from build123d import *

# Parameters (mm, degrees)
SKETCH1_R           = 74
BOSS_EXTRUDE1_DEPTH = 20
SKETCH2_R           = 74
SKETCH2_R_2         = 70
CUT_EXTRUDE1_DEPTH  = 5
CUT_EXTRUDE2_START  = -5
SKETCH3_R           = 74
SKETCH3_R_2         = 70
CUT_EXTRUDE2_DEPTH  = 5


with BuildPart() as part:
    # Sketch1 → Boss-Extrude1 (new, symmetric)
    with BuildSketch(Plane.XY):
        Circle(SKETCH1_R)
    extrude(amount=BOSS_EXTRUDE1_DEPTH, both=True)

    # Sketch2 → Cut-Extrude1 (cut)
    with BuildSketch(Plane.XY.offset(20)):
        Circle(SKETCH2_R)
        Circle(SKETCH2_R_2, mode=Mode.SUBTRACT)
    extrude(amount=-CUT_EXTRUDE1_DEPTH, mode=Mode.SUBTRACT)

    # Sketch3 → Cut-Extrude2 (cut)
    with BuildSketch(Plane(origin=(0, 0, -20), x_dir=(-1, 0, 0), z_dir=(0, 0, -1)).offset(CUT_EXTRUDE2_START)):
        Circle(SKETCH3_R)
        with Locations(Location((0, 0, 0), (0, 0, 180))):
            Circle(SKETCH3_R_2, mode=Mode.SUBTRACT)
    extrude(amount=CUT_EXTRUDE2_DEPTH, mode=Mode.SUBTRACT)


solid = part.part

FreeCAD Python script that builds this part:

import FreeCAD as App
import Part
import Sketcher

V = App.Vector
Q = App.Units.Quantity

doc = App.newDocument("Part")
params = doc.addObject("Spreadsheet::Sheet", "Params")
for row, (alias, value) in enumerate([
    ("sketch1_diameter", "148 mm"),
    ("pad1_length", "40 mm"),
    ("sketch2_diameter", "148 mm"),
    ("sketch2_diameter2", "140 mm"),
    ("pocket1_length", "5 mm"),
    ("sketch3_diameter", "148 mm"),
    ("sketch3_diameter2", "140 mm"),
    ("pocket2_length", "5 mm"),
], start=1):
    params.set(f"A{row}", alias)
    params.set(f"B{row}", "=" + value)
    params.setAlias(f"B{row}", alias)

body = doc.addObject("PartDesign::Body", "Body")

# Sketch on XY plane
sketch1 = body.newObject("Sketcher::SketchObject", "Sketch")
sketch1.AttachmentSupport = (doc.getObject("XY_Plane"), [""])
sketch1.MapMode = "FlatFace"
sketch1.addGeometry(Part.Circle(V(0, 0, 0), V(0, 0, 1), 74), False)
sketch1.addConstraint([
    Sketcher.Constraint("Coincident", 0, 3, -1, 1),
    Sketcher.Constraint("Diameter", 0, Q("148 mm")),
])
sketch1.setExpression("Constraints[1]", "Params.sketch1_diameter")
pad1 = body.newObject("PartDesign::Pad", "Pad")
pad1.Profile = sketch1
pad1.setExpression("Length", "Params.pad1_length")
pad1.Midplane = True

# Sketch on XY plane
sketch2 = body.newObject("Sketcher::SketchObject", "Sketch001")
sketch2.AttachmentSupport = (doc.getObject("XY_Plane"), [""])
sketch2.MapMode = "FlatFace"
sketch2.AttachmentOffset = App.Placement(V(0, 0, 20), App.Rotation())
sketch2.addGeometry([
    Part.Circle(V(0, 0, 0), V(0, 0, 1), 74),
    Part.Circle(V(0, 0, 0), V(0, 0, 1), 70),
], False)
sketch2.addConstraint([
    Sketcher.Constraint("Coincident", 0, 3, -1, 1),
    Sketcher.Constraint("Coincident", 1, 3, -1, 1),
    Sketcher.Constraint("Diameter", 0, Q("148 mm")),
    Sketcher.Constraint("Diameter", 1, Q("140 mm")),
])
sketch2.setExpression("Constraints[2]", "Params.sketch2_diameter")
sketch2.setExpression("Constraints[3]", "Params.sketch2_diameter2")
pocket1 = body.newObject("PartDesign::Pocket", "Pocket")
pocket1.Profile = sketch2
pocket1.setExpression("Length", "Params.pocket1_length")

# Sketch on XY plane
sketch3 = body.newObject("Sketcher::SketchObject", "Sketch002")
sketch3.AttachmentSupport = (doc.getObject("XY_Plane"), [""])
sketch3.MapMode = "FlatFace"
sketch3.AttachmentOffset = App.Placement(V(0, 0, -15), App.Rotation())
sketch3.addGeometry([
    Part.Circle(V(0, 0, 0), V(0, 0, 1), 74),
    Part.Circle(V(0, 0, 0), V(0, 0, 1), 70),
], False)
sketch3.addConstraint([
    Sketcher.Constraint("Coincident", 0, 3, -1, 1),
    Sketcher.Constraint("Coincident", 1, 3, -1, 1),
    Sketcher.Constraint("Diameter", 0, Q("148 mm")),
    Sketcher.Constraint("Diameter", 1, Q("140 mm")),
])
sketch3.setExpression("Constraints[2]", "Params.sketch3_diameter")
sketch3.setExpression("Constraints[3]", "Params.sketch3_diameter2")
pocket2 = body.newObject("PartDesign::Pocket", "Pocket001")
pocket2.Profile = sketch3
pocket2.setExpression("Length", "Params.pocket2_length")

doc.recompute()
